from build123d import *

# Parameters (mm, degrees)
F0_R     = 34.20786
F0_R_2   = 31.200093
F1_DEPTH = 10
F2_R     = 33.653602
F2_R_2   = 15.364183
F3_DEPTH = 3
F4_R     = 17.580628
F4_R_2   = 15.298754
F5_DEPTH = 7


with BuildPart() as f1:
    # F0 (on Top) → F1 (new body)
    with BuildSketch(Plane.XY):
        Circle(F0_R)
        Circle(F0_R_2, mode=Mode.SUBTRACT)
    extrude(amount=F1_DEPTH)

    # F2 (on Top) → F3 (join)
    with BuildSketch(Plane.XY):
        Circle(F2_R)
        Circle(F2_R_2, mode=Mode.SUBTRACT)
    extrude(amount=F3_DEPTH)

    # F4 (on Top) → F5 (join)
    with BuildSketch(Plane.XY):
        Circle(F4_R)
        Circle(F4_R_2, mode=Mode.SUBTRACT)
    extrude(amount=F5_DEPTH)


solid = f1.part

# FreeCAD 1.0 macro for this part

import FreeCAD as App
import Part
import Sketcher

V = App.Vector
Q = App.Units.Quantity

doc = App.newDocument("Part")
body = doc.addObject("PartDesign::Body", "Body")

sketch1 = doc.addObject("Sketcher::SketchObject", "Sketch")
body.addObject(sketch1)
sketch1.AttachmentSupport = (doc.XY_Plane, [""])
sketch1.MapMode = "FlatFace"
sketch1.addGeometry(Part.Circle(V(0, 0, 0), V(0, 0, 1), 34), False)
sketch1.addGeometry(Part.Circle(V(0, 0, 0), V(0, 0, 1), 31), False)
sketch1.addConstraint(Sketcher.Constraint("Coincident", 0, 3, -1, 1))
sketch1.addConstraint(Sketcher.Constraint("Coincident", 1, 3, -1, 1))
sketch1.addConstraint(Sketcher.Constraint("Diameter", 0, Q("68.41572 mm")))
sketch1.addConstraint(Sketcher.Constraint("Diameter", 1, Q("62.400186 mm")))
pad1 = doc.addObject("PartDesign::Pad", "Pad")
body.addObject(pad1)
pad1.Profile = sketch1
pad1.Length = 10

sketch2 = doc.addObject("Sketcher::SketchObject", "Sketch001")
body.addObject(sketch2)
sketch2.AttachmentSupport = (doc.XY_Plane, [""])
sketch2.MapMode = "FlatFace"
sketch2.addGeometry(Part.Circle(V(0, 0, 0), V(0, 0, 1), 34), False)
sketch2.addGeometry(Part.Circle(V(0, 0, 0), V(0, 0, 1), 15), False)
sketch2.addConstraint(Sketcher.Constraint("Coincident", 0, 3, -1, 1))
sketch2.addConstraint(Sketcher.Constraint("Coincident", 1, 3, -1, 1))
sketch2.addConstraint(Sketcher.Constraint("Diameter", 0, Q("67.307204 mm")))
sketch2.addConstraint(Sketcher.Constraint("Diameter", 1, Q("30.728366 mm")))
pad2 = doc.addObject("PartDesign::Pad", "Pad001")
body.addObject(pad2)
pad2.Profile = sketch2
pad2.Length = 3

sketch3 = doc.addObject("Sketcher::SketchObject", "Sketch002")
body.addObject(sketch3)
sketch3.AttachmentSupport = (doc.XY_Plane, [""])
sketch3.MapMode = "FlatFace"
sketch3.addGeometry(Part.Circle(V(0, 0, 0), V(0, 0, 1), 18), False)
sketch3.addGeometry(Part.Circle(V(0, 0, 0), V(0, 0, 1), 15), False)
sketch3.addConstraint(Sketcher.Constraint("Coincident", 0, 3, -1, 1))
sketch3.addConstraint(Sketcher.Constraint("Coincident", 1, 3, -1, 1))
sketch3.addConstraint(Sketcher.Constraint("Diameter", 1, Q("30.597508 mm")))
sketch3.addConstraint(Sketcher.Constraint("Diameter", 0, Q("35.161256 mm")))
pad3 = doc.addObject("PartDesign::Pad", "Pad002")
body.addObject(pad3)
pad3.Profile = sketch3
pad3.Length = 7

doc.recompute()
